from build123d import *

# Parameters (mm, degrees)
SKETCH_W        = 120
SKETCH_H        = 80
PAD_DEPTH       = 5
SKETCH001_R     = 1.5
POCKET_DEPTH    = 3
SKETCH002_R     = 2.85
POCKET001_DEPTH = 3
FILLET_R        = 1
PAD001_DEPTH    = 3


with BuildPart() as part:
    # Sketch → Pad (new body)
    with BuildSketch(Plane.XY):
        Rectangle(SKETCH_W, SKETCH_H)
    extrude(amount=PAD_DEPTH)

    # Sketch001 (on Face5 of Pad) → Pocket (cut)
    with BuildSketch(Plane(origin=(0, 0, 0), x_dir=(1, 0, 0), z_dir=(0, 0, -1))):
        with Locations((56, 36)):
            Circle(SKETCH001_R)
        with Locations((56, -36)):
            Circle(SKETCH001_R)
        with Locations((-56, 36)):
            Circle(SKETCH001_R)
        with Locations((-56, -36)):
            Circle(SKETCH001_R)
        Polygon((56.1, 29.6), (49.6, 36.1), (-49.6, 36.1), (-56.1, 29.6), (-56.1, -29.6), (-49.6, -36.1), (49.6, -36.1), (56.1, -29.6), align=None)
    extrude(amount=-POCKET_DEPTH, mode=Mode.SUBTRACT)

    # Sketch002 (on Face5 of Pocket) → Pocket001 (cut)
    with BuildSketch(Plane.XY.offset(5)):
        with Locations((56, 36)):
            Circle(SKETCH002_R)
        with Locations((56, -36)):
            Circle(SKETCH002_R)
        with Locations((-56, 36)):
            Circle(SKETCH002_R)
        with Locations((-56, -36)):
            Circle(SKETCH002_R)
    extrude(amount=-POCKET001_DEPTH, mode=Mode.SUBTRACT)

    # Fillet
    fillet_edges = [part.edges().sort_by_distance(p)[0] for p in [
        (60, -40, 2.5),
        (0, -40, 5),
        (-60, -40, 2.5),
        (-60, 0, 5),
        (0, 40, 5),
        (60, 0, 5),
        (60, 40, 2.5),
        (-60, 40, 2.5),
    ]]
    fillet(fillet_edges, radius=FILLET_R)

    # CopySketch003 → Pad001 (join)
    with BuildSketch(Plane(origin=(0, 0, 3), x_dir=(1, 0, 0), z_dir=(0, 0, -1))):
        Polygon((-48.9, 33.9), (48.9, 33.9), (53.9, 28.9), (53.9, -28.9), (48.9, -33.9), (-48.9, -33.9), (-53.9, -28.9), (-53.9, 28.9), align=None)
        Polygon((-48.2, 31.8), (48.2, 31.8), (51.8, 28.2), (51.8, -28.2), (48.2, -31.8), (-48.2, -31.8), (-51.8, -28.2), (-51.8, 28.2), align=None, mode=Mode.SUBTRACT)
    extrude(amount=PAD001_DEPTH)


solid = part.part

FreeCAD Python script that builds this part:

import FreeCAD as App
import Part
import Sketcher

V = App.Vector
Q = App.Units.Quantity


def edges_at(feature, points):
    """Names of the edges that pass closest to the given points."""
    edges = feature.Shape.Edges
    near = lambda p: min(range(len(edges)), key=lambda i: edges[i].distToShape(Part.Vertex(*p))[0])
    return sorted({f"Edge{near(p) + 1}" for p in points})

doc = App.newDocument("Part")
body = doc.addObject("PartDesign::Body", "Body")

sketch1 = doc.addObject("Sketcher::SketchObject", "Sketch")
body.addObject(sketch1)
sketch1.AttachmentSupport = (doc.XY_Plane, [""])
sketch1.MapMode = "FlatFace"
sketch1.addGeometry([
    Part.LineSegment(V(-60, 40, 0), V(-60, -40, 0)),
    Part.LineSegment(V(-60, -40, 0), V(60, -40, 0)),
    Part.LineSegment(V(60, -40, 0), V(60, 40, 0)),
    Part.LineSegment(V(60, 40, 0), V(-60, 40, 0)),
], False)
sketch1.addConstraint([
    Sketcher.Constraint("Coincident", 0, 2, 1, 1),
    Sketcher.Constraint("Coincident", 1, 2, 2, 1),
    Sketcher.Constraint("Coincident", 2, 2, 3, 1),
    Sketcher.Constraint("Coincident", 3, 2, 0, 1),
    Sketcher.Constraint("Vertical", 0),
    Sketcher.Constraint("Horizontal", 1),
    Sketcher.Constraint("Vertical", 2),
    Sketcher.Constraint("Horizontal", 3),
    Sketcher.Constraint("Symmetric", 0, 2, 2, 2, -1, 1),
    Sketcher.Constraint("DistanceX", 1, 1, 1, 2, Q("120 mm")),
    Sketcher.Constraint("DistanceY", 0, 2, 0, 1, Q("80 mm")),
])
pad1 = doc.addObject("PartDesign::Pad", "Pad")
body.addObject(pad1)
pad1.Profile = sketch1
pad1.Length = 5

sketch2 = doc.addObject("Sketcher::SketchObject", "Sketch001")
body.addObject(sketch2)
sketch2.AttachmentSupport = (doc.XY_Plane, [""])
sketch2.MapMode = "FlatFace"
sketch2.addGeometry([
    Part.Circle(V(56, -36, 0), V(0, 0, 1), 1.5),
    Part.Circle(V(56, 36, 0), V(0, 0, 1), 1.5),
    Part.Circle(V(-56, -36, 0), V(0, 0, 1), 1.5),
    Part.Circle(V(-56, 36, 0), V(0, 0, 1), 1.5),
    Part.LineSegment(V(56.1, -29.6, 0), V(49.6, -36.1, 0)),
    Part.LineSegment(V(49.6, -36.1, 0), V(-49.6, -36.1, 0)),
    Part.LineSegment(V(-49.6, -36.1, 0), V(-56.1, -29.6, 0)),
    Part.LineSegment(V(-56.1, -29.6, 0), V(-56.1, 29.6, 0)),
    Part.LineSegment(V(-56.1, 29.6, 0), V(-49.6, 36.1, 0)),
    Part.LineSegment(V(-49.6, 36.1, 0), V(49.6, 36.1, 0)),
    Part.LineSegment(V(49.6, 36.1, 0), V(56.1, 29.6, 0)),
    Part.LineSegment(V(56.1, 29.6, 0), V(56.1, -29.6, 0)),
], False)
sketch2.addConstraint([
    Sketcher.Constraint("Coincident", 4, 2, 5, 1),
    Sketcher.Constraint("Coincident", 5, 2, 6, 1),
    Sketcher.Constraint("Coincident", 6, 2, 7, 1),
    Sketcher.Constraint("Coincident", 7, 2, 8, 1),
    Sketcher.Constraint("Coincident", 8, 2, 9, 1),
    Sketcher.Constraint("Coincident", 9, 2, 10, 1),
    Sketcher.Constraint("Coincident", 10, 2, 11, 1),
    Sketcher.Constraint("Coincident", 11, 2, 4, 1),
    Sketcher.Constraint("Horizontal", 5),
    Sketcher.Constraint("Vertical", 7),
    Sketcher.Constraint("Horizontal", 9),
    Sketcher.Constraint("Vertical", 11),
    Sketcher.Constraint("Equal", 0, 1),
    Sketcher.Constraint("Equal", 1, 2),
    Sketcher.Constraint("Equal", 2, 3),
    Sketcher.Constraint("Symmetric", 1, 3, 2, 3, -1, 1),
    Sketcher.Constraint("Symmetric", 0, 3, 3, 3, -1, 1),
    Sketcher.Constraint("Symmetric", 4, 2, 8, 2, -1, 1),
    Sketcher.Constraint("Symmetric", 6, 2, 10, 2, -1, 1),
    Sketcher.Constraint("Symmetric", 0, 3, 2, 3, -2),
    Sketcher.Constraint("Perpendicular", 4, 6),
    Sketcher.Constraint("Perpendicular", 6, 8),
    Sketcher.Constraint("Perpendicular", 8, 10),
    Sketcher.Constraint("Horizontal", 7, 2, 10, 2),
    Sketcher.Constraint("Vertical", 5, 2, 8, 2),
    Sketcher.Constraint("Diameter", 0, Q("3 mm")),
    Sketcher.Constraint("DistanceX", 5, 2, 5, 1, Q("99.2 mm")),
    Sketcher.Constraint("DistanceY", 7, 1, 7, 2, Q("59.2 mm")),
    Sketcher.Constraint("DistanceX", -1, 1, 0, 3, Q("56 mm")),
    Sketcher.Constraint("DistanceY", 0, 3, -1, 1, Q("36 mm")),
    Sketcher.Constraint("DistanceY", 4, 2, -1, 1, Q("36.1 mm")),
])
pocket1 = doc.addObject("PartDesign::Pocket", "Pocket")
body.addObject(pocket1)
pocket1.Profile = sketch2
pocket1.Length = 3
pocket1.Reversed = True

sketch3 = doc.addObject("Sketcher::SketchObject", "Sketch002")
body.addObject(sketch3)
sketch3.AttachmentSupport = (doc.XY_Plane, [""])
sketch3.MapMode = "FlatFace"
sketch3.AttachmentOffset = App.Placement(V(0, 0, 5), App.Rotation())
sketch3.addGeometry([
    Part.Circle(V(56, 36, 0), V(0, 0, 1), 2.9),
    Part.Circle(V(56, -36, 0), V(0, 0, 1), 2.9),
    Part.Circle(V(-56, 36, 0), V(0, 0, 1), 2.9),
    Part.Circle(V(-56, -36, 0), V(0, 0, 1), 2.9),
], False)
sketch3.addConstraint([
    Sketcher.Constraint("Equal", 0, 1),
    Sketcher.Constraint("Equal", 1, 2),
    Sketcher.Constraint("Equal", 2, 3),
    Sketcher.Constraint("Symmetric", 1, 3, 2, 3, -1, 1),
    Sketcher.Constraint("Symmetric", 0, 3, 3, 3, -1, 1),
    Sketcher.Constraint("Symmetric", 0, 3, 2, 3, -2),
    Sketcher.Constraint("Diameter", 0, Q("5.7 mm")),
    Sketcher.Constraint("DistanceX", -1, 1, 0, 3, Q("56 mm")),
    Sketcher.Constraint("DistanceY", -1, 1, 0, 3, Q("36 mm")),
])
pocket2 = doc.addObject("PartDesign::Pocket", "Pocket001")
body.addObject(pocket2)
pocket2.Profile = sketch3
pocket2.Length = 3
doc.recompute()

fillet = doc.addObject("PartDesign::Fillet", "Fillet")
body.addObject(fillet)
fillet.Base = (pocket2, edges_at(pocket2, [
    (60, -40, 2.5),
    (0, -40, 5),
    (-60, -40, 2.5),
    (-60, 0, 5),
    (0, 40, 5),
    (60, 0, 5),
    (60, 40, 2.5),
    (-60, 40, 2.5),
]))
fillet.Radius = 1

sketch4 = doc.addObject("Sketcher::SketchObject", "Sketch003")
body.addObject(sketch4)
sketch4.AttachmentSupport = (doc.XY_Plane, [""])
sketch4.MapMode = "FlatFace"
sketch4.AttachmentOffset = App.Placement(V(0, 0, 3), App.Rotation())
sketch4.addGeometry([
    Part.LineSegment(V(49, -34, 0), V(-49, -34, 0)),
    Part.LineSegment(V(-49, -34, 0), V(-54, -29, 0)),
    Part.LineSegment(V(-54, -29, 0), V(-54, 29, 0)),
    Part.LineSegment(V(-54, 29, 0), V(-49, 34, 0)),
    Part.LineSegment(V(-49, 34, 0), V(49, 34, 0)),
    Part.LineSegment(V(49, 34, 0), V(54, 29, 0)),
    Part.LineSegment(V(54, 29, 0), V(54, -29, 0)),
    Part.LineSegment(V(54, -29, 0), V(49, -34, 0)),
    Part.LineSegment(V(-48, -32, 0), V(48, -32, 0)),
    Part.LineSegment(V(48, -32, 0), V(52, -28, 0)),
    Part.LineSegment(V(52, -28, 0), V(52, 28, 0)),
    Part.LineSegment(V(52, 28, 0), V(48, 32, 0)),
    Part.LineSegment(V(48, 32, 0), V(-48, 32, 0)),
    Part.LineSegment(V(-48, 32, 0), V(-52, 28, 0)),
    Part.LineSegment(V(-52, 28, 0), V(-52, -28, 0)),
    Part.LineSegment(V(-52, -28, 0), V(-48, -32, 0)),
], False)
sketch4.addConstraint([
    Sketcher.Constraint("Coincident", 0, 2, 1, 1),
    Sketcher.Constraint("Coincident", 1, 2, 2, 1),
    Sketcher.Constraint("Coincident", 2, 2, 3, 1),
    Sketcher.Constraint("Coincident", 3, 2, 4, 1),
    Sketcher.Constraint("Coincident", 4, 2, 5, 1),
    Sketcher.Constraint("Coincident", 5, 2, 6, 1),
    Sketcher.Constraint("Coincident", 6, 2, 7, 1),
    Sketcher.Constraint("Coincident", 7, 2, 0, 1),
    Sketcher.Constraint("Coincident", 8, 2, 9, 1),
    Sketcher.Constraint("Coincident", 9, 2, 10, 1),
    Sketcher.Constraint("Coincident", 10, 2, 11, 1),
    Sketcher.Constraint("Coincident", 11, 2, 12, 1),
    Sketcher.Constraint("Coincident", 12, 2, 13, 1),
    Sketcher.Constraint("Coincident", 13, 2, 14, 1),
    Sketcher.Constraint("Coincident", 14, 2, 15, 1),
    Sketcher.Constraint("Coincident", 15, 2, 8, 1),
    Sketcher.Constraint("Horizontal", 0),
    Sketcher.Constraint("Vertical", 2),
    Sketcher.Constraint("Horizontal", 4),
    Sketcher.Constraint("Vertical", 6),
    Sketcher.Constraint("Horizontal", 8),
    Sketcher.Constraint("Vertical", 10),
    Sketcher.Constraint("Horizontal", 12),
    Sketcher.Constraint("Vertical", 14),
    Sketcher.Constraint("Symmetric", 0, 2, 4, 2, -1, 1),
    Sketcher.Constraint("Symmetric", 1, 2, 5, 2, -1, 1),
    Sketcher.Constraint("Symmetric", 8, 2, 12, 2, -1, 1),
    Sketcher.Constraint("Symmetric", 9, 2, 13, 2, -1, 1),
    Sketcher.Constraint("Perpendicular", 1, 3),
    Sketcher.Constraint("Perpendicular", 5, 7),
    Sketcher.Constraint("Parallel", 7, 9),
    Sketcher.Constraint("Perpendicular", 9, 11),
    Sketcher.Constraint("Perpendicular", 13, 15),
    Sketcher.Constraint("Horizontal", 2, 2, 5, 2),
    Sketcher.Constraint("Horizontal", 1, 2, 6, 2),
    Sketcher.Constraint("Horizontal", 10, 2, 13, 2),
    Sketcher.Constraint("Horizontal", 9, 2, 14, 2),
    Sketcher.Constraint("Vertical", 0, 2, 3, 2),
    Sketcher.Constraint("DistanceX", 0, 2, 0, 1, Q("97.8 mm")),
    Sketcher.Constraint("DistanceX", 8, 1, 8, 2, Q("96.4 mm")),
    Sketcher.Constraint("DistanceY", 2, 1, 2, 2, Q("57.8 mm")),
    Sketcher.Constraint("DistanceY", 10, 1, 10, 2, Q("56.4 mm")),
    Sketcher.Constraint("DistanceX", 1, 2, 0, 2, Q("5 mm")),
    Sketcher.Constraint("DistanceY", 8, 2, 10, 2, Q("60 mm")),
])
pad2 = doc.addObject("PartDesign::Pad", "Pad001")
body.addObject(pad2)
pad2.Profile = sketch4
pad2.Length = 3
pad2.Reversed = True

doc.recompute()
